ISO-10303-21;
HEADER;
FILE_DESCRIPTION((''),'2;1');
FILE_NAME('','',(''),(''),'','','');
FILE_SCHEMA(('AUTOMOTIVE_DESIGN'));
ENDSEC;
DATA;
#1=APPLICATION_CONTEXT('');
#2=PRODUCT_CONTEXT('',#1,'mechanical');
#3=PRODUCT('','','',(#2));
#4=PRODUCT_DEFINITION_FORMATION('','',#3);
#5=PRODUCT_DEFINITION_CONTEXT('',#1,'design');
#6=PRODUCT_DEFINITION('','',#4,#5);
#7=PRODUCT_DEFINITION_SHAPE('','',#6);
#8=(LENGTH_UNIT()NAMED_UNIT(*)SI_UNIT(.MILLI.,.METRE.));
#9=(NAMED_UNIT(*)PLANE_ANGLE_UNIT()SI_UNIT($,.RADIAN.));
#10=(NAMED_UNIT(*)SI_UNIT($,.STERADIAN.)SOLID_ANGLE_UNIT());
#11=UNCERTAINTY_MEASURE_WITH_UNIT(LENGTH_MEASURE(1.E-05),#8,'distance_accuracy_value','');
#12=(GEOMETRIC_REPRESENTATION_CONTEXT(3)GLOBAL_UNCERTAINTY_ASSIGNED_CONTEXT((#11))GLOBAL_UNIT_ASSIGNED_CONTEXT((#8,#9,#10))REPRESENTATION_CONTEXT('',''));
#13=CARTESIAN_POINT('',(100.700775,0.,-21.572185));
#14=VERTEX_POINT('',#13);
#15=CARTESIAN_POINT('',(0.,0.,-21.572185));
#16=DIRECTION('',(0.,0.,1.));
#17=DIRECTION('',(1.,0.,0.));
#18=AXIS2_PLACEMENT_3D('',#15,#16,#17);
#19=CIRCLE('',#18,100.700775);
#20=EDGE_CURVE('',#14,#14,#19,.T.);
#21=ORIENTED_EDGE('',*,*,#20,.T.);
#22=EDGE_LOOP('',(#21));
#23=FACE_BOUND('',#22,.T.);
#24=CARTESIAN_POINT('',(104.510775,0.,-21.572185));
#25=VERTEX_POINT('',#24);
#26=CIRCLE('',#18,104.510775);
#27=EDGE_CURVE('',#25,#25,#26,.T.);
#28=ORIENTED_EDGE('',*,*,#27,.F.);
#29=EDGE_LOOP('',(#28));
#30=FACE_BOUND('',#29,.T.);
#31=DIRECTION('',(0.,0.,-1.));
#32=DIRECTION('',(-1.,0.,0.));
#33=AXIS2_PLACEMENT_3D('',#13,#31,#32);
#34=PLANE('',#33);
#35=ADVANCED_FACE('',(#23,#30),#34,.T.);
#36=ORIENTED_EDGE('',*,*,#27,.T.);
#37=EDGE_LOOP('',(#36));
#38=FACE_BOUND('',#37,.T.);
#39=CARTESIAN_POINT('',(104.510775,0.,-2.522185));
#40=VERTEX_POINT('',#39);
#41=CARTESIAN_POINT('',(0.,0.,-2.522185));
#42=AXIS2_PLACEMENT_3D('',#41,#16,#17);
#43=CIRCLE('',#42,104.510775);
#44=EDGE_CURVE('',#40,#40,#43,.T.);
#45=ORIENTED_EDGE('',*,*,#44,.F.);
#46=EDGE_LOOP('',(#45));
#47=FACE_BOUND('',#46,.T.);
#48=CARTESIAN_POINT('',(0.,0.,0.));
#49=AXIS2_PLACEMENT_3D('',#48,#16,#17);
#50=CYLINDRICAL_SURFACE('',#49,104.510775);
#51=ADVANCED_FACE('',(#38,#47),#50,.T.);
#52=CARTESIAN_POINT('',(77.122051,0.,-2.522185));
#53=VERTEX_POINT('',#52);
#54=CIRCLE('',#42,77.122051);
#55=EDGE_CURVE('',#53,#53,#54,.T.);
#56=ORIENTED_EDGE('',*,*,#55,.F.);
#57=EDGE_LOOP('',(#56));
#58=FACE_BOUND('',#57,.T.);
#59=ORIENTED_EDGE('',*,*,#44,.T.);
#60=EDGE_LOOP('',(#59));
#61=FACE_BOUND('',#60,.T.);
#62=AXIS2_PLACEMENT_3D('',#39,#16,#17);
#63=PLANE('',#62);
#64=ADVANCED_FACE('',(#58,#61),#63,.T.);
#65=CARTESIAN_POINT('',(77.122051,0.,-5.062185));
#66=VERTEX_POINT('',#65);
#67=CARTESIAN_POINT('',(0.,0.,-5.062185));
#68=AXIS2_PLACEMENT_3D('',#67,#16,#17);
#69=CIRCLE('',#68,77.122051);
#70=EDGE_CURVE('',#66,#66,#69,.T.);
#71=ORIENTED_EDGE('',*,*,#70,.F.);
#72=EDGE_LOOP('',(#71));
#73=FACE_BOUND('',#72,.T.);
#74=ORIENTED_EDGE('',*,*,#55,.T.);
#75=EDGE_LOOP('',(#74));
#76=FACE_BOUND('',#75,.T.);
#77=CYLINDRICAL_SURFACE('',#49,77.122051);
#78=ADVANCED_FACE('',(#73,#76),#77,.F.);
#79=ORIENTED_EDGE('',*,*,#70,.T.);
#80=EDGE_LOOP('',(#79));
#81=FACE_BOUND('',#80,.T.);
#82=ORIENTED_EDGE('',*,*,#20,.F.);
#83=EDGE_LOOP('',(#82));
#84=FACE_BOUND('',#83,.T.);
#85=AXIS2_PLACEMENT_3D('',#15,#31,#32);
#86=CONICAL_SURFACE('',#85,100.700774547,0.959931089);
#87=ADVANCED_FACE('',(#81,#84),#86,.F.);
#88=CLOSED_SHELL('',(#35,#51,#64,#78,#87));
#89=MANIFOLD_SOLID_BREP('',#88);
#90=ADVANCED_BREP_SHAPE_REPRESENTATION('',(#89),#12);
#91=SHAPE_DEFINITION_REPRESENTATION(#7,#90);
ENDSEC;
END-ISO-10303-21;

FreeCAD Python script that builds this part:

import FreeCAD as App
import Part
import Sketcher

V = App.Vector
Q = App.Units.Quantity


def add_polygon(sketch, points):
    """Adds a closed chain of lines whose ends are joined by coincident constraints."""
    first, n = sketch.GeometryCount, len(points)
    for a, b in zip(points, points[1:] + points[:1]):
        sketch.addGeometry(Part.LineSegment(App.Vector(*a, 0), App.Vector(*b, 0)), False)
    for i in range(n):
        sketch.addConstraint(Sketcher.Constraint("Coincident", first + i, 2, first + (i + 1) % n, 1))

doc = App.newDocument("Part")
body = doc.addObject("PartDesign::Body", "Body")

# Sketch on XZ plane
sketch1 = doc.addObject("Sketcher::SketchObject", "Sketch")
body.addObject(sketch1)
sketch1.AttachmentSupport = (doc.XZ_Plane, [""])
sketch1.MapMode = "FlatFace"
add_polygon(sketch1, [(77.122051, -5.062185), (77.122051, -2.522185), (104.510775, -2.522185), (104.510775, -21.572185), (100.700775, -21.572185)])  # lines 0-4
sketch1.addConstraint(Sketcher.Constraint("Vertical", 0))
sketch1.addConstraint(Sketcher.Constraint("Horizontal", 1))
sketch1.addConstraint(Sketcher.Constraint("Vertical", 2))
sketch1.addConstraint(Sketcher.Constraint("Horizontal", 3))
sketch1.addConstraint(Sketcher.Constraint("DistanceY", 0, 1, 0, 2, Q("0.1 in")))
sketch1.addConstraint(Sketcher.Constraint("Angle", 4, Q("145 deg")))
sketch1.addConstraint(Sketcher.Constraint("DistanceX", 3, 2, 3, 1, Q("0.15 in")))
sketch1.addConstraint(Sketcher.Constraint("DistanceY", 2, 2, 2, 1, Q("0.75 in")))
sketch1.addConstraint(Sketcher.Constraint("DistanceX", -1, 1, 0, 2, 77.122051))
sketch1.addConstraint(Sketcher.Constraint("DistanceY", 0, 2, -1, 1, 2.522185))
revolution = doc.addObject("PartDesign::Revolution", "Revolution")
body.addObject(revolution)
revolution.Profile = sketch1
revolution.ReferenceAxis = (sketch1, ["V_Axis"])
revolution.Angle = 360

doc.recompute()
